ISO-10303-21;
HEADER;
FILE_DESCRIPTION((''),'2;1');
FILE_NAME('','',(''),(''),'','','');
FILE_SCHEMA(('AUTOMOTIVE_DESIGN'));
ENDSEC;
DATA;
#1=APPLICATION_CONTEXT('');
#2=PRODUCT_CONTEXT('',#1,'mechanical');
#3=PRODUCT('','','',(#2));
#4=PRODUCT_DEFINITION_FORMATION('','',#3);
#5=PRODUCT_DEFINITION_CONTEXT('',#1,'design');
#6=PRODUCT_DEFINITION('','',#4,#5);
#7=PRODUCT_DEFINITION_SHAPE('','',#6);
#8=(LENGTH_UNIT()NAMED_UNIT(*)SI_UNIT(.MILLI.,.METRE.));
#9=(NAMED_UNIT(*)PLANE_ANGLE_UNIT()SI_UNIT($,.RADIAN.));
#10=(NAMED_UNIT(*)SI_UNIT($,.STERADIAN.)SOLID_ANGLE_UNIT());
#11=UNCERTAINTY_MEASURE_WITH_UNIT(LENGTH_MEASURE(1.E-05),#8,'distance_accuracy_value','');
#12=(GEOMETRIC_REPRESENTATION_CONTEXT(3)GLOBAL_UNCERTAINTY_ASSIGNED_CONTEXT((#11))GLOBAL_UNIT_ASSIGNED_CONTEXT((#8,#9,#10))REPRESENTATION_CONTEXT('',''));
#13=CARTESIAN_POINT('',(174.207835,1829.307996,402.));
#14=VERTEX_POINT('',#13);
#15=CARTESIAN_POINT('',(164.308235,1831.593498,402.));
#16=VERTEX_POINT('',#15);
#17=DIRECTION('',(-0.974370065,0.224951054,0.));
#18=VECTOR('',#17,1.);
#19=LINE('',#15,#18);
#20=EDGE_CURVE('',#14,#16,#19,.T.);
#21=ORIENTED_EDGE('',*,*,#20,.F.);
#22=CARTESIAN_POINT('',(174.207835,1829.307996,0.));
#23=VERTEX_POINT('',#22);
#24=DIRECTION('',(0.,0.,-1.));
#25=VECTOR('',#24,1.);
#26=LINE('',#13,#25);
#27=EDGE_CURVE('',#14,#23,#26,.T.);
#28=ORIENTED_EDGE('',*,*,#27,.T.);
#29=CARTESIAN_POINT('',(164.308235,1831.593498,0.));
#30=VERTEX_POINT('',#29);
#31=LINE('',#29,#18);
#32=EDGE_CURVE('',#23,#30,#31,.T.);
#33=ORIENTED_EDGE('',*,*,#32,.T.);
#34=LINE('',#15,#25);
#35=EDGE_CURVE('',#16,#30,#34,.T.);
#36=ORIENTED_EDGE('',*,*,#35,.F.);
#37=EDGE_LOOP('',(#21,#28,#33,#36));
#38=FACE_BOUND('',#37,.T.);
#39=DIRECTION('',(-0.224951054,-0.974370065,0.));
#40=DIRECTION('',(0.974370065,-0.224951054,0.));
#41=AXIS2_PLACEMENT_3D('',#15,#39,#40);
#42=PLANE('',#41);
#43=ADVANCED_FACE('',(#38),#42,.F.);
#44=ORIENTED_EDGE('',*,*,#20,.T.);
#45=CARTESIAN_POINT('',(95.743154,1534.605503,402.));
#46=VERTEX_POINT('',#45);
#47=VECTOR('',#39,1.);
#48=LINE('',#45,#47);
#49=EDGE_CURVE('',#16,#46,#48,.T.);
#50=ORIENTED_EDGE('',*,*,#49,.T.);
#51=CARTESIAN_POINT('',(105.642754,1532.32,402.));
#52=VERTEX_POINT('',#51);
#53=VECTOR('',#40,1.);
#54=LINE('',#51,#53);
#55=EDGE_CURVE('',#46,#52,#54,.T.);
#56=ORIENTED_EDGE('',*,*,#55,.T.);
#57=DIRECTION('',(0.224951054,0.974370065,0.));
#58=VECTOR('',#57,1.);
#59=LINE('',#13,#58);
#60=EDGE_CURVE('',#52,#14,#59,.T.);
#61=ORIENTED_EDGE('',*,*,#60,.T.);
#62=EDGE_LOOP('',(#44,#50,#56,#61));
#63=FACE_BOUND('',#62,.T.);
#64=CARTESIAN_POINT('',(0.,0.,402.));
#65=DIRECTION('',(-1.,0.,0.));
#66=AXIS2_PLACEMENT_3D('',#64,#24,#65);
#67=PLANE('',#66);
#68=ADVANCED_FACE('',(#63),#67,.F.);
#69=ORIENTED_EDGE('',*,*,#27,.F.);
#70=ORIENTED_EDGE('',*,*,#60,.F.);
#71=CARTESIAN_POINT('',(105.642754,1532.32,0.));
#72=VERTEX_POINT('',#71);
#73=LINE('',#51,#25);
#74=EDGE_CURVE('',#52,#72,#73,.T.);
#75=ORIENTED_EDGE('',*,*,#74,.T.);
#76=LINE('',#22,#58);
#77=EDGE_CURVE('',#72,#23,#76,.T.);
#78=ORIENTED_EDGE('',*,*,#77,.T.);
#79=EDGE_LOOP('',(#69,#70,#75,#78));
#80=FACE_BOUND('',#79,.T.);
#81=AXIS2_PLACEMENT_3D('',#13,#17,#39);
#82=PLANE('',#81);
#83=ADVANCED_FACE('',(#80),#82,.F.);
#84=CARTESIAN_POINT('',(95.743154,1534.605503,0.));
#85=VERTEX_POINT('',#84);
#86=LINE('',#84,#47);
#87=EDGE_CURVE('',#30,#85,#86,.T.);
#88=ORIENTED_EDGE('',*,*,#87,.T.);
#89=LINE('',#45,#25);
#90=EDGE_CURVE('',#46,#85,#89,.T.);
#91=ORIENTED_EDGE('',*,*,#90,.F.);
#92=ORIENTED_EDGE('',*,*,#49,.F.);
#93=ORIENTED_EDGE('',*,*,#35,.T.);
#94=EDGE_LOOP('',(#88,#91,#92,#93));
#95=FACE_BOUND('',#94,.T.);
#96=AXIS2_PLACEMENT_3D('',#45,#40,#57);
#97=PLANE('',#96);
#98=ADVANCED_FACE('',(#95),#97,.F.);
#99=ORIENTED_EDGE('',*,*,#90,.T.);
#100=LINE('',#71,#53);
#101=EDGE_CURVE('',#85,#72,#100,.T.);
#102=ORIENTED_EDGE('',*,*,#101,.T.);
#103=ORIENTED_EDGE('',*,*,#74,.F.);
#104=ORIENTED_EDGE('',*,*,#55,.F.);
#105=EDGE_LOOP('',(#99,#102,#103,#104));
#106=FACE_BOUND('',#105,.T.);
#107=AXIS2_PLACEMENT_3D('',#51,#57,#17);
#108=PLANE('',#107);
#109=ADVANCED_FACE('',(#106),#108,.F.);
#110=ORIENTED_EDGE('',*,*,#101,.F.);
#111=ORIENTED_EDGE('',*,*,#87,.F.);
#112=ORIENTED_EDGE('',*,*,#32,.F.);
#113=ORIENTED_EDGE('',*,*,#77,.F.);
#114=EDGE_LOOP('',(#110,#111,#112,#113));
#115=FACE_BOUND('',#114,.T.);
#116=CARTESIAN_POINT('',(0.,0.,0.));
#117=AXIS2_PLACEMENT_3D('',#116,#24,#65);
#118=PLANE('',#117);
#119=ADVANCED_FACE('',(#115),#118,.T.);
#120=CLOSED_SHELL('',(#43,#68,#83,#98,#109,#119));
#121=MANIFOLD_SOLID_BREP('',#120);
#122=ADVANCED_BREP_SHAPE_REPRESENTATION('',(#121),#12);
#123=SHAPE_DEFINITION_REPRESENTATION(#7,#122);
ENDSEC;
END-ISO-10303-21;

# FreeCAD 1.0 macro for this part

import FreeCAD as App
import Part
import Sketcher

V = App.Vector
Q = App.Units.Quantity


def add_polygon(sketch, points):
    """Adds a closed chain of lines whose ends are joined by coincident constraints."""
    first, n = sketch.GeometryCount, len(points)
    for a, b in zip(points, points[1:] + points[:1]):
        sketch.addGeometry(Part.LineSegment(App.Vector(*a, 0), App.Vector(*b, 0)), False)
    for i in range(n):
        sketch.addConstraint(Sketcher.Constraint("Coincident", first + i, 2, first + (i + 1) % n, 1))

doc = App.newDocument("Part")
body = doc.addObject("PartDesign::Body", "Body")

# Sketch on XY plane
sketch1 = body.newObject("Sketcher::SketchObject", "Sketch")
sketch1.AttachmentSupport = (doc.getObject("XY_Plane"), [""])
sketch1.MapMode = "FlatFace"
add_polygon(sketch1, [(106, 1532), (174, 1829), (164, 1832), (96, 1535)])  # lines 0-3
sketch1.addConstraint(Sketcher.Constraint("Perpendicular", 0, 1))
sketch1.addConstraint(Sketcher.Constraint("Perpendicular", 1, 2))
sketch1.addConstraint(Sketcher.Constraint("Perpendicular", 2, 3))
sketch1.addConstraint(Sketcher.Constraint("Distance", 0, Q("12 in")))
sketch1.addConstraint(Sketcher.Constraint("Angle", 0, Q("77 deg")))
sketch1.addConstraint(Sketcher.Constraint("Distance", 1, Q("0.4 in")))
sketch1.addConstraint(Sketcher.Constraint("DistanceY", -1, 1, 0, 2, Q("72.0199998 in")))
sketch1.addConstraint(Sketcher.Constraint("DistanceX", -1, 1, 0, 2, 174.207835))
pad1 = body.newObject("PartDesign::Pad", "Pad")
pad1.Profile = sketch1
pad1.Length = 402

doc.recompute()
